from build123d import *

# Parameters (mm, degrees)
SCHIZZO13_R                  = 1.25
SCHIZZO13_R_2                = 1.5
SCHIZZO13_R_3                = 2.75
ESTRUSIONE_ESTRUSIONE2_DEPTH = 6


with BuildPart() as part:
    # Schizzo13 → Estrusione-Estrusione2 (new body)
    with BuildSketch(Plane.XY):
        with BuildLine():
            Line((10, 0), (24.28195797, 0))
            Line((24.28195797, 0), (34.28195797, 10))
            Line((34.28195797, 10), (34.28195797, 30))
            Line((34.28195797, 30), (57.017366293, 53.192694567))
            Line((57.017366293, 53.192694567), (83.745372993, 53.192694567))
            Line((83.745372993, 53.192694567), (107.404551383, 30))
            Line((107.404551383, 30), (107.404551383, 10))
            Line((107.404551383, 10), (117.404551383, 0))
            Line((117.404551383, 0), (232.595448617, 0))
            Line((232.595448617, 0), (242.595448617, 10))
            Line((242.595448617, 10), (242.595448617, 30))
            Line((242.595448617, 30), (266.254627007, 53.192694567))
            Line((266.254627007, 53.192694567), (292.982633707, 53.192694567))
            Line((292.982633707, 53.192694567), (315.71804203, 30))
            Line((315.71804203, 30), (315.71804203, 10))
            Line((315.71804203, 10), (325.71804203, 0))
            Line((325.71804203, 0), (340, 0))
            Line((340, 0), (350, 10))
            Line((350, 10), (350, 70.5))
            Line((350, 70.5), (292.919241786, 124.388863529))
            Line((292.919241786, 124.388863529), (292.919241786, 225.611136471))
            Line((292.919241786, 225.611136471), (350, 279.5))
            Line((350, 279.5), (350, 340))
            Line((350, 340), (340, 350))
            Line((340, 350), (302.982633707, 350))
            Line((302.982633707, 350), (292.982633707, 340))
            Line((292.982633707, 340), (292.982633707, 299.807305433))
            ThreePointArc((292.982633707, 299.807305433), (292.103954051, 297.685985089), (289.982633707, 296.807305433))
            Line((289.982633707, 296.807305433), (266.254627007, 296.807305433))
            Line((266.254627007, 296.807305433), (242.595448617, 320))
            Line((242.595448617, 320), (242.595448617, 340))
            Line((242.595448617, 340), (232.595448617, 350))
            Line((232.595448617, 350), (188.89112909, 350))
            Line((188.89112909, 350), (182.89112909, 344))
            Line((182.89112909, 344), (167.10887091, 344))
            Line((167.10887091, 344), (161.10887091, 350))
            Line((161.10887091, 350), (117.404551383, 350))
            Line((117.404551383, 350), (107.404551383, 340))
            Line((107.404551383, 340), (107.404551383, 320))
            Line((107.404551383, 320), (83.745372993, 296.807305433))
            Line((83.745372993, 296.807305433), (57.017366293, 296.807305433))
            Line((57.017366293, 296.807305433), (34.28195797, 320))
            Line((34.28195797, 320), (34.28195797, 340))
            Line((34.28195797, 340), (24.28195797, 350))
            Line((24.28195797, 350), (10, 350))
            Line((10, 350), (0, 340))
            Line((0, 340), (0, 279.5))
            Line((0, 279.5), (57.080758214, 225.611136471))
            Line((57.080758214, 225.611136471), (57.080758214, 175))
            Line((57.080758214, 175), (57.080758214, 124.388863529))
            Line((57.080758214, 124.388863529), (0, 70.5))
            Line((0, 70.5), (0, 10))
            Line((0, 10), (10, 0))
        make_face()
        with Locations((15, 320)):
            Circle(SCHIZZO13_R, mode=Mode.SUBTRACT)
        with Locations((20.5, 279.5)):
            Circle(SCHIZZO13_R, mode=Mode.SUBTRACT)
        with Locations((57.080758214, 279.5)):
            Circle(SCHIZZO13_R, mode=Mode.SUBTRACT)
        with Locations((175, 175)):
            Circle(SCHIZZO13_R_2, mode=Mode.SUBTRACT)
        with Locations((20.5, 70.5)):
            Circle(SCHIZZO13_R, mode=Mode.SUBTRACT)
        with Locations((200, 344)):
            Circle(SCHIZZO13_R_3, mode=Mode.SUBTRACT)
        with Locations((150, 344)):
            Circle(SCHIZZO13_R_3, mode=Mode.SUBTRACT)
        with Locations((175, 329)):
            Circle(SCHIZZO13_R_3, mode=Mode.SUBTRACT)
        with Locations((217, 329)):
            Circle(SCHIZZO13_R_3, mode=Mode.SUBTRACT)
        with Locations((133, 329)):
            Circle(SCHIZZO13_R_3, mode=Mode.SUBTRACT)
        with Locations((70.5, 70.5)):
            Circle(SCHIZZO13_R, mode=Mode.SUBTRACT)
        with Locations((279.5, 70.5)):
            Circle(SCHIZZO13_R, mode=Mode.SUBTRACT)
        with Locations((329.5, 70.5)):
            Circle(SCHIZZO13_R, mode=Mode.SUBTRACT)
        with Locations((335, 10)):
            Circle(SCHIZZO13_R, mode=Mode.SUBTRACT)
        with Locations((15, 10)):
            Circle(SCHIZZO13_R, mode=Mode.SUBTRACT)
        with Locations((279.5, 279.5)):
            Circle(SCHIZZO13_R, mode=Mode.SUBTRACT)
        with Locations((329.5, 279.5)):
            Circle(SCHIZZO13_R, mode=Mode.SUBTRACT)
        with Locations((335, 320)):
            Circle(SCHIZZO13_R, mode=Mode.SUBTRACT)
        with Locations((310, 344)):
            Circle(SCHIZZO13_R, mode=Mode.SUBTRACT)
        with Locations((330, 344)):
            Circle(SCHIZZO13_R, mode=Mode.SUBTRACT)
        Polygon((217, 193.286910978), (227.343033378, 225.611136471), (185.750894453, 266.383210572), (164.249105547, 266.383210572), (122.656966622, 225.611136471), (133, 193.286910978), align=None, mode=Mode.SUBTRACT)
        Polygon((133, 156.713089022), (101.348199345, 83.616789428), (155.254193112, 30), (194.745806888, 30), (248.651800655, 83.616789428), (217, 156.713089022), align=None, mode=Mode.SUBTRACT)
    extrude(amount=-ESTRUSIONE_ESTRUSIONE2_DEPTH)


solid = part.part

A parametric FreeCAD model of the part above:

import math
import FreeCAD as App
import Part
import Sketcher
from FreeCAD import Vector


def add_polygon(sketch, points):
    """Adds a closed chain of lines whose ends are joined by coincident constraints."""
    first, n = sketch.GeometryCount, len(points)
    for a, b in zip(points, points[1:] + points[:1]):
        sketch.addGeometry(Part.LineSegment(App.Vector(*a, 0), App.Vector(*b, 0)), False)
    for i in range(n):
        sketch.addConstraint(Sketcher.Constraint("Coincident", first + i, 2, first + (i + 1) % n, 1))

doc = App.newDocument("Part")
body = doc.addObject("PartDesign::Body", "Body")

# Sketch on XY plane
sketch1 = body.newObject("Sketcher::SketchObject", "Sketch")
sketch1.AttachmentSupport = (doc.getObject("XY_Plane"), [""])
sketch1.MapMode = "FlatFace"
sketch1.addGeometry(Part.LineSegment(Vector(10, 0, 0), Vector(24.281958, 0, 0)), False)  # 0
sketch1.addGeometry(Part.LineSegment(Vector(24.281958, 0, 0), Vector(34.281958, 10, 0)), False)  # 1
sketch1.addGeometry(Part.LineSegment(Vector(34.281958, 10, 0), Vector(34.281958, 30, 0)), False)  # 2
sketch1.addGeometry(Part.LineSegment(Vector(34.281958, 30, 0), Vector(57.017366, 53.192695, 0)), False)  # 3
sketch1.addGeometry(Part.LineSegment(Vector(57.017366, 53.192695, 0), Vector(83.745373, 53.192695, 0)), False)  # 4
sketch1.addGeometry(Part.LineSegment(Vector(83.745373, 53.192695, 0), Vector(107.404551, 30, 0)), False)  # 5
sketch1.addGeometry(Part.LineSegment(Vector(107.404551, 30, 0), Vector(107.404551, 10, 0)), False)  # 6
sketch1.addGeometry(Part.LineSegment(Vector(107.404551, 10, 0), Vector(117.404551, 0, 0)), False)  # 7
sketch1.addGeometry(Part.LineSegment(Vector(117.404551, 0, 0), Vector(232.595449, 0, 0)), False)  # 8
sketch1.addGeometry(Part.LineSegment(Vector(232.595449, 0, 0), Vector(242.595449, 10, 0)), False)  # 9
sketch1.addGeometry(Part.LineSegment(Vector(242.595449, 10, 0), Vector(242.595449, 30, 0)), False)  # 10
sketch1.addGeometry(Part.LineSegment(Vector(242.595449, 30, 0), Vector(266.254627, 53.192695, 0)), False)  # 11
sketch1.addGeometry(Part.LineSegment(Vector(266.254627, 53.192695, 0), Vector(292.982634, 53.192695, 0)), False)  # 12
sketch1.addGeometry(Part.LineSegment(Vector(292.982634, 53.192695, 0), Vector(315.718042, 30, 0)), False)  # 13
sketch1.addGeometry(Part.LineSegment(Vector(315.718042, 30, 0), Vector(315.718042, 10, 0)), False)  # 14
sketch1.addGeometry(Part.LineSegment(Vector(315.718042, 10, 0), Vector(325.718042, 0, 0)), False)  # 15
sketch1.addGeometry(Part.LineSegment(Vector(325.718042, 0, 0), Vector(340, 0, 0)), False)  # 16
sketch1.addGeometry(Part.LineSegment(Vector(340, 0, 0), Vector(350, 10, 0)), False)  # 17
sketch1.addGeometry(Part.LineSegment(Vector(350, 10, 0), Vector(350, 70.5, 0)), False)  # 18
sketch1.addGeometry(Part.LineSegment(Vector(350, 70.5, 0), Vector(292.919242, 124.388864, 0)), False)  # 19
sketch1.addGeometry(Part.LineSegment(Vector(292.919242, 124.388864, 0), Vector(292.919242, 225.611136, 0)), False)  # 20
sketch1.addGeometry(Part.LineSegment(Vector(292.919242, 225.611136, 0), Vector(350, 279.5, 0)), False)  # 21
sketch1.addGeometry(Part.LineSegment(Vector(350, 279.5, 0), Vector(350, 340, 0)), False)  # 22
sketch1.addGeometry(Part.LineSegment(Vector(350, 340, 0), Vector(340, 350, 0)), False)  # 23
sketch1.addGeometry(Part.LineSegment(Vector(340, 350, 0), Vector(302.982634, 350, 0)), False)  # 24
sketch1.addGeometry(Part.LineSegment(Vector(302.982634, 350, 0), Vector(292.982634, 340, 0)), False)  # 25
sketch1.addGeometry(Part.LineSegment(Vector(292.982634, 340, 0), Vector(292.982634, 299.807305, 0)), False)  # 26
sketch1.addGeometry(Part.ArcOfCircle(Part.Circle(Vector(289.982634, 299.807305, 0), Vector(0, 0, 1), 3), math.radians(-90), math.radians(0)), False)  # 27
sketch1.addGeometry(Part.LineSegment(Vector(289.982634, 296.807305, 0), Vector(266.254627, 296.807305, 0)), False)  # 28
sketch1.addGeometry(Part.LineSegment(Vector(266.254627, 296.807305, 0), Vector(242.595449, 320, 0)), False)  # 29
sketch1.addGeometry(Part.LineSegment(Vector(242.595449, 320, 0), Vector(242.595449, 340, 0)), False)  # 30
sketch1.addGeometry(Part.LineSegment(Vector(242.595449, 340, 0), Vector(232.595449, 350, 0)), False)  # 31
sketch1.addGeometry(Part.LineSegment(Vector(232.595449, 350, 0), Vector(188.891129, 350, 0)), False)  # 32
sketch1.addGeometry(Part.LineSegment(Vector(188.891129, 350, 0), Vector(182.891129, 344, 0)), False)  # 33
sketch1.addGeometry(Part.LineSegment(Vector(182.891129, 344, 0), Vector(167.108871, 344, 0)), False)  # 34
sketch1.addGeometry(Part.LineSegment(Vector(167.108871, 344, 0), Vector(161.108871, 350, 0)), False)  # 35
sketch1.addGeometry(Part.LineSegment(Vector(161.108871, 350, 0), Vector(117.404551, 350, 0)), False)  # 36
sketch1.addGeometry(Part.LineSegment(Vector(117.404551, 350, 0), Vector(107.404551, 340, 0)), False)  # 37
sketch1.addGeometry(Part.LineSegment(Vector(107.404551, 340, 0), Vector(107.404551, 320, 0)), False)  # 38
sketch1.addGeometry(Part.LineSegment(Vector(107.404551, 320, 0), Vector(83.745373, 296.807305, 0)), False)  # 39
sketch1.addGeometry(Part.LineSegment(Vector(83.745373, 296.807305, 0), Vector(57.017366, 296.807305, 0)), False)  # 40
sketch1.addGeometry(Part.LineSegment(Vector(57.017366, 296.807305, 0), Vector(34.281958, 320, 0)), False)  # 41
sketch1.addGeometry(Part.LineSegment(Vector(34.281958, 320, 0), Vector(34.281958, 340, 0)), False)  # 42
sketch1.addGeometry(Part.LineSegment(Vector(34.281958, 340, 0), Vector(24.281958, 350, 0)), False)  # 43
sketch1.addGeometry(Part.LineSegment(Vector(24.281958, 350, 0), Vector(10, 350, 0)), False)  # 44
sketch1.addGeometry(Part.LineSegment(Vector(10, 350, 0), Vector(0, 340, 0)), False)  # 45
sketch1.addGeometry(Part.LineSegment(Vector(0, 340, 0), Vector(0, 279.5, 0)), False)  # 46
sketch1.addGeometry(Part.LineSegment(Vector(0, 279.5, 0), Vector(57.080758, 225.611136, 0)), False)  # 47
sketch1.addGeometry(Part.LineSegment(Vector(57.080758, 225.611136, 0), Vector(57.080758, 124.388864, 0)), False)  # 48
sketch1.addGeometry(Part.LineSegment(Vector(57.080758, 124.388864, 0), Vector(0, 70.5, 0)), False)  # 49
sketch1.addGeometry(Part.LineSegment(Vector(0, 70.5, 0), Vector(0, 10, 0)), False)  # 50
sketch1.addGeometry(Part.LineSegment(Vector(0, 10, 0), Vector(10, 0, 0)), False)  # 51
sketch1.addGeometry(Part.Circle(Vector(15, 10, 0), Vector(0, 0, 1), 1.25), False)  # 52
sketch1.addGeometry(Part.Circle(Vector(20.5, 70.5, 0), Vector(0, 0, 1), 1.25), False)  # 53
sketch1.addGeometry(Part.Circle(Vector(70.5, 70.5, 0), Vector(0, 0, 1), 1.25), False)  # 54
sketch1.addGeometry(Part.Circle(Vector(335, 10, 0), Vector(0, 0, 1), 1.25), False)  # 55
sketch1.addGeometry(Part.Circle(Vector(279.5, 70.5, 0), Vector(0, 0, 1), 1.25), False)  # 56
sketch1.addGeometry(Part.Circle(Vector(329.5, 70.5, 0), Vector(0, 0, 1), 1.25), False)  # 57
add_polygon(sketch1, [(101.348199, 83.616789), (133, 156.713089), (217, 156.713089), (248.651801, 83.616789), (194.745807, 30), (155.254193, 30)])  # lines 58-63
sketch1.addGeometry(Part.Circle(Vector(175, 175, 0), Vector(0, 0, 1), 1.5), False)  # 64
sketch1.addGeometry(Part.Circle(Vector(20.5, 279.5, 0), Vector(0, 0, 1), 1.25), False)  # 65
sketch1.addGeometry(Part.Circle(Vector(57.080758, 279.5, 0), Vector(0, 0, 1), 1.25), False)  # 66
sketch1.addGeometry(Part.Circle(Vector(15, 320, 0), Vector(0, 0, 1), 1.25), False)  # 67
sketch1.addGeometry(Part.Circle(Vector(133, 329, 0), Vector(0, 0, 1), 2.75), False)  # 68
sketch1.addGeometry(Part.Circle(Vector(150, 344, 0), Vector(0, 0, 1), 2.75), False)  # 69
add_polygon(sketch1, [(227.343033, 225.611136), (217, 193.286911), (133, 193.286911), (122.656967, 225.611136), (164.249106, 266.383211), (185.750894, 266.383211)])  # lines 70-75
sketch1.addGeometry(Part.Circle(Vector(175, 329, 0), Vector(0, 0, 1), 2.75), False)  # 76
sketch1.addGeometry(Part.Circle(Vector(200, 344, 0), Vector(0, 0, 1), 2.75), False)  # 77
sketch1.addGeometry(Part.Circle(Vector(217, 329, 0), Vector(0, 0, 1), 2.75), False)  # 78
sketch1.addGeometry(Part.Circle(Vector(279.5, 279.5, 0), Vector(0, 0, 1), 1.25), False)  # 79
sketch1.addGeometry(Part.Circle(Vector(329.5, 279.5, 0), Vector(0, 0, 1), 1.25), False)  # 80
sketch1.addGeometry(Part.Circle(Vector(335, 320, 0), Vector(0, 0, 1), 1.25), False)  # 81
sketch1.addGeometry(Part.Circle(Vector(310, 344, 0), Vector(0, 0, 1), 1.25), False)  # 82
sketch1.addGeometry(Part.Circle(Vector(330, 344, 0), Vector(0, 0, 1), 1.25), False)  # 83
sketch1.addConstraint([
    Sketcher.Constraint("Coincident", 0, 2, 1, 1),
    Sketcher.Constraint("Coincident", 1, 2, 2, 1),
    Sketcher.Constraint("Coincident", 2, 2, 3, 1),
    Sketcher.Constraint("Coincident", 3, 2, 4, 1),
    Sketcher.Constraint("Coincident", 4, 2, 5, 1),
    Sketcher.Constraint("Coincident", 5, 2, 6, 1),
    Sketcher.Constraint("Coincident", 6, 2, 7, 1),
    Sketcher.Constraint("Coincident", 7, 2, 8, 1),
    Sketcher.Constraint("Coincident", 8, 2, 9, 1),
    Sketcher.Constraint("Coincident", 9, 2, 10, 1),
    Sketcher.Constraint("Coincident", 10, 2, 11, 1),
    Sketcher.Constraint("Coincident", 11, 2, 12, 1),
    Sketcher.Constraint("Coincident", 12, 2, 13, 1),
    Sketcher.Constraint("Coincident", 13, 2, 14, 1),
    Sketcher.Constraint("Coincident", 14, 2, 15, 1),
    Sketcher.Constraint("Coincident", 15, 2, 16, 1),
    Sketcher.Constraint("Coincident", 16, 2, 17, 1),
    Sketcher.Constraint("Coincident", 17, 2, 18, 1),
    Sketcher.Constraint("Coincident", 18, 2, 19, 1),
    Sketcher.Constraint("Coincident", 19, 2, 20, 1),
    Sketcher.Constraint("Coincident", 20, 2, 21, 1),
    Sketcher.Constraint("Coincident", 21, 2, 22, 1),
    Sketcher.Constraint("Coincident", 22, 2, 23, 1),
    Sketcher.Constraint("Coincident", 23, 2, 24, 1),
    Sketcher.Constraint("Coincident", 24, 2, 25, 1),
    Sketcher.Constraint("Coincident", 25, 2, 26, 1),
    Sketcher.Constraint("Tangent", 26, 2, 27, 2),
    Sketcher.Constraint("Tangent", 27, 1, 28, 1),
    Sketcher.Constraint("Coincident", 28, 2, 29, 1),
    Sketcher.Constraint("Coincident", 29, 2, 30, 1),
    Sketcher.Constraint("Coincident", 30, 2, 31, 1),
    Sketcher.Constraint("Coincident", 31, 2, 32, 1),
    Sketcher.Constraint("Coincident", 32, 2, 33, 1),
    Sketcher.Constraint("Coincident", 33, 2, 34, 1),
    Sketcher.Constraint("Coincident", 34, 2, 35, 1),
    Sketcher.Constraint("Coincident", 35, 2, 36, 1),
    Sketcher.Constraint("Coincident", 36, 2, 37, 1),
    Sketcher.Constraint("Coincident", 37, 2, 38, 1),
    Sketcher.Constraint("Coincident", 38, 2, 39, 1),
    Sketcher.Constraint("Coincident", 39, 2, 40, 1),
    Sketcher.Constraint("Coincident", 40, 2, 41, 1),
    Sketcher.Constraint("Coincident", 41, 2, 42, 1),
    Sketcher.Constraint("Coincident", 42, 2, 43, 1),
    Sketcher.Constraint("Coincident", 43, 2, 44, 1),
    Sketcher.Constraint("Coincident", 44, 2, 45, 1),
    Sketcher.Constraint("Coincident", 45, 2, 46, 1),
    Sketcher.Constraint("Coincident", 46, 2, 47, 1),
    Sketcher.Constraint("Coincident", 47, 2, 48, 1),
    Sketcher.Constraint("Coincident", 48, 2, 49, 1),
    Sketcher.Constraint("Coincident", 49, 2, 50, 1),
    Sketcher.Constraint("Coincident", 50, 2, 51, 1),
    Sketcher.Constraint("Coincident", 51, 2, 0, 1),
    Sketcher.Constraint("Horizontal", 0),
    Sketcher.Constraint("Vertical", 2),
    Sketcher.Constraint("Horizontal", 4),
    Sketcher.Constraint("Vertical", 6),
    Sketcher.Constraint("Horizontal", 8),
    Sketcher.Constraint("Vertical", 10),
    Sketcher.Constraint("Horizontal", 12),
    Sketcher.Constraint("Vertical", 14),
    Sketcher.Constraint("Horizontal", 16),
    Sketcher.Constraint("Vertical", 18),
    Sketcher.Constraint("Vertical", 20),
    Sketcher.Constraint("Vertical", 22),
    Sketcher.Constraint("Horizontal", 24),
    Sketcher.Constraint("Vertical", 26),
    Sketcher.Constraint("Horizontal", 28),
    Sketcher.Constraint("Vertical", 30),
    Sketcher.Constraint("Horizontal", 32),
    Sketcher.Constraint("Horizontal", 34),
    Sketcher.Constraint("Horizontal", 36),
    Sketcher.Constraint("Vertical", 38),
    Sketcher.Constraint("Horizontal", 40),
    Sketcher.Constraint("Vertical", 42),
    Sketcher.Constraint("Horizontal", 44),
    Sketcher.Constraint("Vertical", 46),
    Sketcher.Constraint("Vertical", 48),
    Sketcher.Constraint("Vertical", 50),
    Sketcher.Constraint("Horizontal", 59),
    Sketcher.Constraint("Horizontal", 62),
    Sketcher.Constraint("Horizontal", 71),
    Sketcher.Constraint("Horizontal", 74),
    Sketcher.Constraint("Equal", 52, 53),
    Sketcher.Constraint("Equal", 53, 54),
    Sketcher.Constraint("Equal", 54, 55),
    Sketcher.Constraint("Equal", 55, 56),
    Sketcher.Constraint("Equal", 56, 57),
    Sketcher.Constraint("Equal", 57, 65),
    Sketcher.Constraint("Equal", 65, 66),
    Sketcher.Constraint("Equal", 66, 67),
    Sketcher.Constraint("Equal", 68, 69),
    Sketcher.Constraint("Equal", 69, 76),
    Sketcher.Constraint("Equal", 76, 77),
    Sketcher.Constraint("Equal", 77, 78),
    Sketcher.Constraint("Equal", 67, 79),
    Sketcher.Constraint("Equal", 79, 80),
    Sketcher.Constraint("Equal", 80, 81),
    Sketcher.Constraint("Equal", 81, 82),
    Sketcher.Constraint("Equal", 82, 83),
    Sketcher.Constraint("PointOnObject", 0, 2, -1),
    Sketcher.Constraint("PointOnObject", 7, 2, -1),
    Sketcher.Constraint("PointOnObject", 15, 2, -1),
    Sketcher.Constraint("PointOnObject", 45, 2, -2),
    Sketcher.Constraint("PointOnObject", 49, 2, -2),
    Sketcher.Constraint("Perpendicular", 3, 5),
    Sketcher.Constraint("Perpendicular", 1, 7),
    Sketcher.Constraint("Perpendicular", 7, 9),
    Sketcher.Constraint("Perpendicular", 11, 13),
    Sketcher.Constraint("Perpendicular", 9, 15),
    Sketcher.Constraint("Perpendicular", 15, 17),
    Sketcher.Constraint("Perpendicular", 17, 23),
    Sketcher.Constraint("Perpendicular", 23, 25),
    Sketcher.Constraint("Parallel", 5, 29),
    Sketcher.Constraint("Perpendicular", 25, 31),
    Sketcher.Constraint("Perpendicular", 31, 33),
    Sketcher.Constraint("Perpendicular", 33, 35),
    Sketcher.Constraint("Perpendicular", 35, 37),
    Sketcher.Constraint("Perpendicular", 13, 39),
    Sketcher.Constraint("Perpendicular", 39, 41),
    Sketcher.Constraint("Perpendicular", 37, 43),
    Sketcher.Constraint("Perpendicular", 43, 45),
    Sketcher.Constraint("Parallel", 19, 47),
    Sketcher.Constraint("Parallel", 21, 49),
    Sketcher.Constraint("Perpendicular", 45, 51),
    Sketcher.Constraint("Perpendicular", 41, 73),
    Sketcher.Constraint("Parallel", 29, 75),
    Sketcher.Constraint("Horizontal", 53, 3, 54, 3),
    Sketcher.Constraint("Horizontal", 52, 3, 55, 3),
    Sketcher.Constraint("Horizontal", 54, 3, 56, 3),
    Sketcher.Constraint("Horizontal", 56, 3, 57, 3),
    Sketcher.Constraint("Horizontal", 65, 3, 66, 3),
    Sketcher.Constraint("Horizontal", 68, 3, 76, 3),
    Sketcher.Constraint("Horizontal", 69, 3, 77, 3),
    Sketcher.Constraint("Horizontal", 76, 3, 78, 3),
    Sketcher.Constraint("Horizontal", 66, 3, 79, 3),
    Sketcher.Constraint("Horizontal", 79, 3, 80, 3),
    Sketcher.Constraint("Horizontal", 67, 3, 81, 3),
    Sketcher.Constraint("Horizontal", 77, 3, 82, 3),
    Sketcher.Constraint("Horizontal", 82, 3, 83, 3),
    Sketcher.Constraint("Horizontal", 55, 3, 1, 2),
    Sketcher.Constraint("Horizontal", 2, 2, 5, 2),
    Sketcher.Constraint("Horizontal", 1, 2, 6, 2),
    Sketcher.Constraint("Horizontal", 6, 2, 9, 2),
    Sketcher.Constraint("Horizontal", 5, 2, 10, 2),
    Sketcher.Constraint("Horizontal", 4, 2, 11, 2),
    Sketcher.Constraint("Horizontal", 10, 2, 13, 2),
    Sketcher.Constraint("Horizontal", 9, 2, 14, 2),
    Sketcher.Constraint("Horizontal", 14, 2, 17, 2),
    Sketcher.Constraint("Horizontal", 57, 3, 18, 2),
    Sketcher.Constraint("Horizontal", 80, 3, 21, 2),
    Sketcher.Constraint("Horizontal", 22, 2, 25, 2),
    Sketcher.Constraint("Horizontal", 81, 3, 29, 2),
    Sketcher.Constraint("Horizontal", 25, 2, 30, 2),
    Sketcher.Constraint("Horizontal", 24, 2, 31, 2),
    Sketcher.Constraint("Horizontal", 83, 3, 33, 2),
    Sketcher.Constraint("Horizontal", 32, 2, 35, 2),
    Sketcher.Constraint("Horizontal", 30, 2, 37, 2),
    Sketcher.Constraint("Horizontal", 29, 2, 38, 2),
    Sketcher.Constraint("Horizontal", 28, 2, 39, 2),
    Sketcher.Constraint("Horizontal", 38, 2, 41, 2),
    Sketcher.Constraint("Horizontal", 37, 2, 42, 2),
    Sketcher.Constraint("Horizontal", 36, 2, 43, 2),
    Sketcher.Constraint("Horizontal", 42, 2, 45, 2),
    Sketcher.Constraint("Horizontal", 21, 2, 46, 2),
    Sketcher.Constraint("Horizontal", 20, 2, 47, 2),
    Sketcher.Constraint("Horizontal", 19, 2, 48, 2),
    Sketcher.Constraint("Horizontal", 18, 2, 49, 2),
    Sketcher.Constraint("Horizontal", 17, 2, 50, 2),
    Sketcher.Constraint("Horizontal", 13, 2, 61, 2),
    Sketcher.Constraint("Horizontal", 60, 2, 63, 2),
    Sketcher.Constraint("Horizontal", 47, 2, 72, 2),
    Sketcher.Constraint("Horizontal", 72, 2, 75, 2),
    Sketcher.Constraint("Vertical", 53, 3, 65, 3),
    Sketcher.Constraint("Vertical", 52, 3, 67, 3),
    Sketcher.Constraint("Vertical", 64, 3, 76, 3),
    Sketcher.Constraint("Vertical", 56, 3, 79, 3),
    Sketcher.Constraint("Vertical", 57, 3, 80, 3),
    Sketcher.Constraint("Vertical", 55, 3, 81, 3),
    Sketcher.Constraint("Vertical", 18, 2, 21, 2),
    Sketcher.Constraint("Vertical", 16, 2, 23, 2),
    Sketcher.Constraint("Vertical", 12, 2, 25, 2),
    Sketcher.Constraint("Vertical", 11, 2, 28, 2),
    Sketcher.Constraint("Vertical", 10, 2, 29, 2),
    Sketcher.Constraint("Vertical", 7, 2, 36, 2),
    Sketcher.Constraint("Vertical", 6, 2, 37, 2),
    Sketcher.Constraint("Vertical", 4, 2, 39, 2),
    Sketcher.Constraint("Vertical", 3, 2, 40, 2),
    Sketcher.Constraint("Vertical", 66, 3, 47, 2),
    Sketcher.Constraint("Vertical", 68, 3, 58, 2),
    Sketcher.Constraint("Vertical", 78, 3, 59, 2),
    Sketcher.Constraint("Vertical", 59, 2, 70, 2),
    Sketcher.Constraint("Vertical", 58, 2, 71, 2),
    Sketcher.Constraint("Equal", 4, 12),
    Sketcher.Constraint("Equal", 0, 16),
    Sketcher.Constraint("Equal", 32, 36),
    Sketcher.Constraint("Equal", 18, 22),
    Sketcher.Constraint("Equal", 14, 30),
    Sketcher.Constraint("Equal", 58, 60),
    Sketcher.Constraint("Equal", 61, 63),
    Sketcher.Constraint("Equal", 70, 72),
    Sketcher.Constraint("Diameter", 64, 3.0),
    Sketcher.Constraint("Radius", 27, 3.0),
    Sketcher.Constraint("Diameter", 52, 2.5),
    Sketcher.Constraint("Diameter", 68, 5.5),
    Sketcher.Constraint("DistanceX", 59, 1, 59, 2, 84.0),
    Sketcher.Constraint("DistanceY", 2, 1, 2, 2, 20.0),
    Sketcher.Constraint("DistanceY", 18, 1, 18, 2, 60.5),
    Sketcher.Constraint("DistanceX", -1, 1, 52, 3, 15.0),
    Sketcher.Constraint("DistanceY", -1, 1, 52, 3, 10.0),
    Sketcher.Constraint("DistanceX", -1, 1, 55, 3, 335.0),
    Sketcher.Constraint("DistanceX", -1, 1, 64, 3, 175.0),
    Sketcher.Constraint("DistanceY", -1, 1, 64, 3, 175.0),
    Sketcher.Constraint("DistanceY", -1, 1, 67, 3, 320.0),
    Sketcher.Constraint("DistanceX", -1, 1, 68, 3, 133.0),
    Sketcher.Constraint("DistanceY", -1, 1, 68, 3, 329.0),
    Sketcher.Constraint("DistanceX", -1, 1, 69, 3, 150.0),
    Sketcher.Constraint("DistanceY", -1, 1, 69, 3, 344.0),
    Sketcher.Constraint("DistanceX", -1, 1, 77, 3, 200.0),
    Sketcher.Constraint("DistanceX", -1, 1, 82, 3, 310.0),
    Sketcher.Constraint("DistanceX", -1, 1, 83, 3, 330.0),
    Sketcher.Constraint("DistanceX", -1, 1, 16, 2, 340.0),
    Sketcher.Constraint("DistanceX", -1, 1, 53, 3, 20.5),
    Sketcher.Constraint("DistanceX", -1, 1, 54, 3, 70.5),
    Sketcher.Constraint("DistanceX", -1, 1, 56, 3, 279.5),
    Sketcher.Constraint("DistanceX", -1, 1, 57, 3, 329.5),
    Sketcher.Constraint("DistanceX", 32, 2, 32, 1, 43.70432),
    Sketcher.Constraint("DistanceX", 34, 2, 34, 1, 15.782258),
    Sketcher.Constraint("DistanceX", 74, 1, 74, 2, 21.501789),
    Sketcher.Constraint("DistanceX", -1, 1, 60, 2, 248.651801),
    Sketcher.Constraint("Distance", 5, 33.130919),
    Sketcher.Constraint("Distance", 70, 33.938678),
    Sketcher.Constraint("Distance", 73, 58.24318),
    Sketcher.Constraint("DistanceX", 0, 1, 0, 2, 14.281958),
    Sketcher.Constraint("DistanceX", 4, 1, 4, 2, 26.728007),
    Sketcher.Constraint("DistanceX", 62, 2, 62, 1, 39.491614),
    Sketcher.Constraint("DistanceY", 20, 1, 20, 2, 101.222273),
    Sketcher.Constraint("DistanceX", -1, 1, 66, 3, 57.080758),
    Sketcher.Constraint("DistanceY", -1, 1, 58, 2, 156.713089),
    Sketcher.Constraint("DistanceY", -1, 1, 60, 2, 83.616789),
])
pad1 = body.newObject("PartDesign::Pad", "Pad")
pad1.Profile = sketch1
pad1.Length = 6
pad1.Reversed = True

doc.recompute()
